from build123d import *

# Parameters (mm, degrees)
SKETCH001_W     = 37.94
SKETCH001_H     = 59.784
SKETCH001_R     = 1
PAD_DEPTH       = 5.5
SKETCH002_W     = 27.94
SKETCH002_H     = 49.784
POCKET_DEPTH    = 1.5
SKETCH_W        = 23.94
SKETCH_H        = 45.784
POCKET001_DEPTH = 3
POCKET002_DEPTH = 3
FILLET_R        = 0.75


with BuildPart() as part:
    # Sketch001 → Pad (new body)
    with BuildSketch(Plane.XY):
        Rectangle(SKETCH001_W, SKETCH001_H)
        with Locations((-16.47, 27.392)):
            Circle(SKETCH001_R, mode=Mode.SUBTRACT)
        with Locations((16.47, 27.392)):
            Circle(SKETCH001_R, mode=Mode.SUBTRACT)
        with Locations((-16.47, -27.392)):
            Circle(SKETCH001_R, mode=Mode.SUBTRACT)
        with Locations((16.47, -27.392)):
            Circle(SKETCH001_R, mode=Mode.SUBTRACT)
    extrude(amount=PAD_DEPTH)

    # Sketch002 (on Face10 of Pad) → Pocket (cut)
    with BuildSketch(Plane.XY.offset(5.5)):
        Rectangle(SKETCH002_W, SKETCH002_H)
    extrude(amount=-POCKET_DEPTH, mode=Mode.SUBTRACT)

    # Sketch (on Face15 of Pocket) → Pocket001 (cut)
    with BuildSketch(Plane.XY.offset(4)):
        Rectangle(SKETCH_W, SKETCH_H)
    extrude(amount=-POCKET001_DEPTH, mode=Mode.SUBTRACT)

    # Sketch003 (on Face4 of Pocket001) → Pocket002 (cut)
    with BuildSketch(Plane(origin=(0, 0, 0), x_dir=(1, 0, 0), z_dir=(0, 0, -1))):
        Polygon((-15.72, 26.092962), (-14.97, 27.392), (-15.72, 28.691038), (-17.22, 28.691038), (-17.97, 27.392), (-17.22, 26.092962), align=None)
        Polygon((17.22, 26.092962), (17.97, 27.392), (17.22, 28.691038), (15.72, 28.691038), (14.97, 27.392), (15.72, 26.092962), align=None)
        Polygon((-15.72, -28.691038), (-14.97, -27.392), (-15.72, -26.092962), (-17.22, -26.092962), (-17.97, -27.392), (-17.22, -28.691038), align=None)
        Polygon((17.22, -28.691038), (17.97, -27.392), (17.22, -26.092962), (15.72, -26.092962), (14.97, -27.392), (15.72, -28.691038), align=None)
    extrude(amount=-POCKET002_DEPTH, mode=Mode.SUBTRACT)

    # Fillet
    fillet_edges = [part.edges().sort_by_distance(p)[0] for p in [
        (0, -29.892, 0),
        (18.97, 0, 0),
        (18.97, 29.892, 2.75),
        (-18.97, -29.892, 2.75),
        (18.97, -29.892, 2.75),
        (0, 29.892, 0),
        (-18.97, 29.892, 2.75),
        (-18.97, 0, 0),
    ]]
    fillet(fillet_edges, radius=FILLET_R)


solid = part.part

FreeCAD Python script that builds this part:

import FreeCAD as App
import Part
import Sketcher

V = App.Vector
Q = App.Units.Quantity


def edges_at(feature, points):
    """Names of the edges that pass closest to the given points."""
    edges = feature.Shape.Edges
    near = lambda p: min(range(len(edges)), key=lambda i: edges[i].distToShape(Part.Vertex(*p))[0])
    return sorted({f"Edge{near(p) + 1}" for p in points})

doc = App.newDocument("Part")
body = doc.addObject("PartDesign::Body", "Body")

# Sketch on XY plane
sketch1 = body.newObject("Sketcher::SketchObject", "Sketch")
sketch1.AttachmentSupport = (doc.getObject("XY_Plane"), [""])
sketch1.MapMode = "FlatFace"
sketch1.addGeometry([
    Part.LineSegment(V(-19, 29.9, 0), V(-19, -29.9, 0)),  # 0
    Part.LineSegment(V(-19, -29.9, 0), V(19, -29.9, 0)),  # 1
    Part.LineSegment(V(19, -29.9, 0), V(19, 29.9, 0)),  # 2
    Part.LineSegment(V(19, 29.9, 0), V(-19, 29.9, 0)),  # 3
    Part.Circle(V(-16.5, -27.4, 0), V(0, 0, 1), 1),  # 4
    Part.Circle(V(16.5, -27.4, 0), V(0, 0, 1), 1),  # 5
    Part.Circle(V(-16.5, 27.4, 0), V(0, 0, 1), 1),  # 6
    Part.Circle(V(16.5, 27.4, 0), V(0, 0, 1), 1),  # 7
], False)
sketch1.addConstraint([
    Sketcher.Constraint("Coincident", 0, 2, 1, 1),
    Sketcher.Constraint("Coincident", 1, 2, 2, 1),
    Sketcher.Constraint("Coincident", 2, 2, 3, 1),
    Sketcher.Constraint("Coincident", 3, 2, 0, 1),
    Sketcher.Constraint("Vertical", 0),
    Sketcher.Constraint("Horizontal", 1),
    Sketcher.Constraint("Vertical", 2),
    Sketcher.Constraint("Horizontal", 3),
    Sketcher.Constraint("Equal", 4, 5),
    Sketcher.Constraint("Equal", 5, 6),
    Sketcher.Constraint("Equal", 6, 7),
    Sketcher.Constraint("Symmetric", 5, 3, 6, 3, -1, 1),
    Sketcher.Constraint("Symmetric", 4, 3, 7, 3, -1, 1),
    Sketcher.Constraint("Symmetric", 0, 2, 2, 2, -1, 1),
    Sketcher.Constraint("Symmetric", 4, 3, 5, 3, -2),
    Sketcher.Constraint("Diameter", 4, Q("2 mm")),
    Sketcher.Constraint("DistanceX", 1, 1, 1, 2, Q("37.94 mm")),
    Sketcher.Constraint("DistanceX", 0, 2, 4, 3, Q("2.5 mm")),
    Sketcher.Constraint("DistanceY", 0, 2, 4, 3, Q("2.5 mm")),
    Sketcher.Constraint("DistanceY", 0, 2, 0, 1, Q("59.784 mm")),
])
pad1 = body.newObject("PartDesign::Pad", "Pad")
pad1.Profile = sketch1
pad1.Length = 5.5

# Sketch on XY plane
sketch2 = body.newObject("Sketcher::SketchObject", "Sketch001")
sketch2.AttachmentSupport = (doc.getObject("XY_Plane"), [""])
sketch2.MapMode = "FlatFace"
sketch2.AttachmentOffset = App.Placement(V(0, 0, 5.5), App.Rotation())
sketch2.addGeometry([
    Part.LineSegment(V(-14, 25, 0), V(-14, -25, 0)),
    Part.LineSegment(V(-14, -25, 0), V(14, -25, 0)),
    Part.LineSegment(V(14, -25, 0), V(14, 25, 0)),
    Part.LineSegment(V(14, 25, 0), V(-14, 25, 0)),
], False)
sketch2.addConstraint([
    Sketcher.Constraint("Coincident", 0, 2, 1, 1),
    Sketcher.Constraint("Coincident", 1, 2, 2, 1),
    Sketcher.Constraint("Coincident", 2, 2, 3, 1),
    Sketcher.Constraint("Coincident", 3, 2, 0, 1),
    Sketcher.Constraint("Vertical", 0),
    Sketcher.Constraint("Horizontal", 1),
    Sketcher.Constraint("Vertical", 2),
    Sketcher.Constraint("Horizontal", 3),
    Sketcher.Constraint("Symmetric", 0, 2, 2, 2, -1, 1),
    Sketcher.Constraint("DistanceX", 1, 1, 1, 2, Q("27.94 mm")),
    Sketcher.Constraint("DistanceY", 0, 2, 0, 1, Q("49.784 mm")),
])
pocket1 = body.newObject("PartDesign::Pocket", "Pocket")
pocket1.Profile = sketch2
pocket1.Length = 1.5

# Sketch on XY plane
sketch3 = body.newObject("Sketcher::SketchObject", "Sketch002")
sketch3.AttachmentSupport = (doc.getObject("XY_Plane"), [""])
sketch3.MapMode = "FlatFace"
sketch3.AttachmentOffset = App.Placement(V(0, 0, 4), App.Rotation())
sketch3.addGeometry([
    Part.LineSegment(V(-12, 23, 0), V(-12, -23, 0)),
    Part.LineSegment(V(-12, -23, 0), V(12, -23, 0)),
    Part.LineSegment(V(12, -23, 0), V(12, 23, 0)),
    Part.LineSegment(V(12, 23, 0), V(-12, 23, 0)),
], False)
sketch3.addConstraint([
    Sketcher.Constraint("Coincident", 0, 2, 1, 1),
    Sketcher.Constraint("Coincident", 1, 2, 2, 1),
    Sketcher.Constraint("Coincident", 2, 2, 3, 1),
    Sketcher.Constraint("Coincident", 3, 2, 0, 1),
    Sketcher.Constraint("Vertical", 0),
    Sketcher.Constraint("Horizontal", 1),
    Sketcher.Constraint("Vertical", 2),
    Sketcher.Constraint("Horizontal", 3),
    Sketcher.Constraint("Symmetric", 0, 2, 2, 2, -1, 1),
    Sketcher.Constraint("DistanceX", 1, 1, 1, 2, Q("23.94 mm")),
    Sketcher.Constraint("DistanceY", 0, 2, 0, 1, Q("45.784 mm")),
])
pocket2 = body.newObject("PartDesign::Pocket", "Pocket001")
pocket2.Profile = sketch3
pocket2.Length = 3

# Sketch on XY plane
sketch4 = body.newObject("Sketcher::SketchObject", "Sketch003")
sketch4.AttachmentSupport = (doc.getObject("XY_Plane"), [""])
sketch4.MapMode = "FlatFace"
sketch4.addGeometry([
    Part.LineSegment(V(-15.7, -26.1, 0), V(-15, -27.4, 0)),  # 0
    Part.LineSegment(V(-15, -27.4, 0), V(-15.7, -28.7, 0)),  # 1
    Part.LineSegment(V(-15.7, -28.7, 0), V(-17.2, -28.7, 0)),  # 2
    Part.LineSegment(V(-17.2, -28.7, 0), V(-18, -27.4, 0)),  # 3
    Part.LineSegment(V(-18, -27.4, 0), V(-17.2, -26.1, 0)),  # 4
    Part.LineSegment(V(-17.2, -26.1, 0), V(-15.7, -26.1, 0)),  # 5
    Part.LineSegment(V(17.2, -26.1, 0), V(18, -27.4, 0)),  # 6
    Part.LineSegment(V(18, -27.4, 0), V(17.2, -28.7, 0)),  # 7
    Part.LineSegment(V(17.2, -28.7, 0), V(15.7, -28.7, 0)),  # 8
    Part.LineSegment(V(15.7, -28.7, 0), V(15, -27.4, 0)),  # 9
    Part.LineSegment(V(15, -27.4, 0), V(15.7, -26.1, 0)),  # 10
    Part.LineSegment(V(15.7, -26.1, 0), V(17.2, -26.1, 0)),  # 11
    Part.LineSegment(V(-15.7, 28.7, 0), V(-15, 27.4, 0)),  # 12
    Part.LineSegment(V(-15, 27.4, 0), V(-15.7, 26.1, 0)),  # 13
    Part.LineSegment(V(-15.7, 26.1, 0), V(-17.2, 26.1, 0)),  # 14
    Part.LineSegment(V(-17.2, 26.1, 0), V(-18, 27.4, 0)),  # 15
    Part.LineSegment(V(-18, 27.4, 0), V(-17.2, 28.7, 0)),  # 16
    Part.LineSegment(V(-17.2, 28.7, 0), V(-15.7, 28.7, 0)),  # 17
    Part.LineSegment(V(17.2, 28.7, 0), V(18, 27.4, 0)),  # 18
    Part.LineSegment(V(18, 27.4, 0), V(17.2, 26.1, 0)),  # 19
    Part.LineSegment(V(17.2, 26.1, 0), V(15.7, 26.1, 0)),  # 20
    Part.LineSegment(V(15.7, 26.1, 0), V(15, 27.4, 0)),  # 21
    Part.LineSegment(V(15, 27.4, 0), V(15.7, 28.7, 0)),  # 22
    Part.LineSegment(V(15.7, 28.7, 0), V(17.2, 28.7, 0)),  # 23
], False)
sketch4.addConstraint([
    Sketcher.Constraint("Coincident", 0, 2, 1, 1),
    Sketcher.Constraint("Coincident", 1, 2, 2, 1),
    Sketcher.Constraint("Coincident", 2, 2, 3, 1),
    Sketcher.Constraint("Coincident", 3, 2, 4, 1),
    Sketcher.Constraint("Coincident", 4, 2, 5, 1),
    Sketcher.Constraint("Coincident", 5, 2, 0, 1),
    Sketcher.Constraint("Coincident", 6, 2, 7, 1),
    Sketcher.Constraint("Coincident", 7, 2, 8, 1),
    Sketcher.Constraint("Coincident", 8, 2, 9, 1),
    Sketcher.Constraint("Coincident", 9, 2, 10, 1),
    Sketcher.Constraint("Coincident", 10, 2, 11, 1),
    Sketcher.Constraint("Coincident", 11, 2, 6, 1),
    Sketcher.Constraint("Coincident", 12, 2, 13, 1),
    Sketcher.Constraint("Coincident", 13, 2, 14, 1),
    Sketcher.Constraint("Coincident", 14, 2, 15, 1),
    Sketcher.Constraint("Coincident", 15, 2, 16, 1),
    Sketcher.Constraint("Coincident", 16, 2, 17, 1),
    Sketcher.Constraint("Coincident", 17, 2, 12, 1),
    Sketcher.Constraint("Coincident", 18, 2, 19, 1),
    Sketcher.Constraint("Coincident", 19, 2, 20, 1),
    Sketcher.Constraint("Coincident", 20, 2, 21, 1),
    Sketcher.Constraint("Coincident", 21, 2, 22, 1),
    Sketcher.Constraint("Coincident", 22, 2, 23, 1),
    Sketcher.Constraint("Coincident", 23, 2, 18, 1),
    Sketcher.Constraint("Horizontal", 2),
    Sketcher.Constraint("Horizontal", 5),
    Sketcher.Constraint("Horizontal", 8),
    Sketcher.Constraint("Horizontal", 11),
    Sketcher.Constraint("Horizontal", 14),
    Sketcher.Constraint("Horizontal", 17),
    Sketcher.Constraint("Horizontal", 20),
    Sketcher.Constraint("Horizontal", 23),
    Sketcher.Constraint("Symmetric", 9, 2, 12, 2, -1, 1),
    Sketcher.Constraint("Symmetric", 10, 2, 13, 2, -1, 1),
    Sketcher.Constraint("Symmetric", 6, 2, 15, 2, -1, 1),
    Sketcher.Constraint("Symmetric", 7, 2, 16, 2, -1, 1),
    Sketcher.Constraint("Symmetric", 3, 2, 18, 2, -1, 1),
    Sketcher.Constraint("Symmetric", 4, 2, 19, 2, -1, 1),
    Sketcher.Constraint("Symmetric", 0, 2, 21, 2, -1, 1),
    Sketcher.Constraint("Symmetric", 1, 2, 22, 2, -1, 1),
    Sketcher.Constraint("Symmetric", 3, 2, 6, 2, -2),
    Sketcher.Constraint("Symmetric", 2, 2, 7, 2, -2),
    Sketcher.Constraint("Symmetric", 0, 2, 9, 2, -2),
    Sketcher.Constraint("Symmetric", 5, 2, 10, 2, -2),
    Sketcher.Constraint("Parallel", 0, 3),
    Sketcher.Constraint("Parallel", 1, 4),
    Sketcher.Constraint("Parallel", 3, 6),
    Sketcher.Constraint("Parallel", 4, 7),
    Sketcher.Constraint("Parallel", 6, 9),
    Sketcher.Constraint("Parallel", 9, 12),
    Sketcher.Constraint("Parallel", 12, 15),
    Sketcher.Constraint("Parallel", 15, 18),
    Sketcher.Constraint("Parallel", 18, 21),
    Sketcher.Constraint("Horizontal", 0, 2, 3, 2),
    Sketcher.Constraint("Vertical", 2, 2, 4, 2),
    Sketcher.Constraint("Angle", 0, Q("-59.999998 deg")),
    Sketcher.Constraint("DistanceX", 2, 2, 2, 1, Q("1.5 mm")),
    Sketcher.Constraint("DistanceX", 3, 2, 0, 2, Q("3 mm")),
    Sketcher.Constraint("DistanceX", 0, 2, -1, 1, Q("14.97 mm")),
    Sketcher.Constraint("DistanceY", 0, 2, -1, 1, Q("27.392 mm")),
])
pocket3 = body.newObject("PartDesign::Pocket", "Pocket002")
pocket3.Profile = sketch4
pocket3.Length = 3
pocket3.Reversed = True
doc.recompute()

fillet = body.newObject("PartDesign::Fillet", "Fillet")
fillet.Base = (pocket3, edges_at(pocket3, [
    (0, -29.892, 0),
    (18.97, 0, 0),
    (18.97, 29.892, 2.75),
    (-18.97, -29.892, 2.75),
    (18.97, -29.892, 2.75),
    (0, 29.892, 0),
    (-18.97, 29.892, 2.75),
    (-18.97, 0, 0),
]))
fillet.Radius = 0.75

doc.recompute()
